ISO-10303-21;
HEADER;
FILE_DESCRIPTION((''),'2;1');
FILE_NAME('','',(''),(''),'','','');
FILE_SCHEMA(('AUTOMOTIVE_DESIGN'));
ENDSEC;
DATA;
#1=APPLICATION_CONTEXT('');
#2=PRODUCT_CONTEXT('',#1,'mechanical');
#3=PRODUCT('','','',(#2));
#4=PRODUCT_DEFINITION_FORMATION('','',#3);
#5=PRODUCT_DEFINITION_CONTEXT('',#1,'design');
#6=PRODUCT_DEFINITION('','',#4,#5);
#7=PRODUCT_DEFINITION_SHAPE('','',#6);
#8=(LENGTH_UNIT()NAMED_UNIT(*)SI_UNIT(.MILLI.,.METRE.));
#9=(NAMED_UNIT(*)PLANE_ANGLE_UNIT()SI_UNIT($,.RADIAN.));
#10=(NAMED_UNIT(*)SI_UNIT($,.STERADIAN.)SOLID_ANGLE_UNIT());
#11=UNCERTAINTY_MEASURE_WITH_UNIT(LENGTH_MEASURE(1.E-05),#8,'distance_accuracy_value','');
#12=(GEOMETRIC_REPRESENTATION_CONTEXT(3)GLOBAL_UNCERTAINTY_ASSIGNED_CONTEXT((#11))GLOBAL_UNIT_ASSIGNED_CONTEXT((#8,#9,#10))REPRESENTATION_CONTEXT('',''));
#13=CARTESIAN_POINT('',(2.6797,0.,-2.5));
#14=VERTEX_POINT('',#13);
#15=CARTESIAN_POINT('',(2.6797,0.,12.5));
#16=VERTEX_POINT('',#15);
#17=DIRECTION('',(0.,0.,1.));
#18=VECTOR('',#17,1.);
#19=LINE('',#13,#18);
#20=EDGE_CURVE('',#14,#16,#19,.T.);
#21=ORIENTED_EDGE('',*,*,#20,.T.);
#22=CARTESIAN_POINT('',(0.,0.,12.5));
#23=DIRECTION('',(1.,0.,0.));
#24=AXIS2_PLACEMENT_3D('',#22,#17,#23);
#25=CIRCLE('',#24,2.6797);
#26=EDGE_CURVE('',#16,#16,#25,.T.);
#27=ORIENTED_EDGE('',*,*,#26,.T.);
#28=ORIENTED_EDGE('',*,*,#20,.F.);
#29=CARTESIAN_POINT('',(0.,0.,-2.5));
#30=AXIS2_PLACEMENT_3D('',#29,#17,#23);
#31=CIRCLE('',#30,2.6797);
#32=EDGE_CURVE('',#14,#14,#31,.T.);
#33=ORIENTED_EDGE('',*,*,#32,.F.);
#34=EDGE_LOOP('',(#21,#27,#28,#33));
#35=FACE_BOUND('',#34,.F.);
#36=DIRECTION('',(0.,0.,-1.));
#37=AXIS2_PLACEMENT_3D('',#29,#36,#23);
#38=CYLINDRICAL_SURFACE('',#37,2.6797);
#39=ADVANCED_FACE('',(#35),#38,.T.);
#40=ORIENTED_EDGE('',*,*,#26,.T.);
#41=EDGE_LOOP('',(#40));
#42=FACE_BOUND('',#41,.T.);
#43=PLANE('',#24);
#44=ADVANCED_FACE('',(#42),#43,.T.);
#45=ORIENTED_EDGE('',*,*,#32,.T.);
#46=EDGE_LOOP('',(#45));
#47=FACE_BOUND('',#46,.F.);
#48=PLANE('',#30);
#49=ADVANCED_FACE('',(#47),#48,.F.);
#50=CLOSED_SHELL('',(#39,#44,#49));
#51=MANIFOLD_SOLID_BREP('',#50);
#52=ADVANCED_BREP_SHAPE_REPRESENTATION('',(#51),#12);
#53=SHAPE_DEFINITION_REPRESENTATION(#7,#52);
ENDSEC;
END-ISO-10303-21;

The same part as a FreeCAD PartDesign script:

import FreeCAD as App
import Part
import Sketcher

V = App.Vector
Q = App.Units.Quantity

doc = App.newDocument("Part")
body = doc.addObject("PartDesign::Body", "Body")

sketch1 = body.newObject("Sketcher::SketchObject", "Sketch")
sketch1.AttachmentSupport = (doc.getObject("XY_Plane"), [""])
sketch1.MapMode = "FlatFace"
sketch1.AttachmentOffset = App.Placement(V(0, 0, -2.5), App.Rotation())
sketch1.addGeometry(Part.Circle(V(0, 0, 0), V(0, 0, 1), 2.7), False)
sketch1.addConstraint(Sketcher.Constraint("Coincident", 0, 3, -1, 1))
sketch1.addConstraint(Sketcher.Constraint("Diameter", 0, Q("5.3594 mm")))
pad1 = body.newObject("PartDesign::Pad", "Pad")
pad1.Profile = sketch1
pad1.Length = 15

doc.recompute()
